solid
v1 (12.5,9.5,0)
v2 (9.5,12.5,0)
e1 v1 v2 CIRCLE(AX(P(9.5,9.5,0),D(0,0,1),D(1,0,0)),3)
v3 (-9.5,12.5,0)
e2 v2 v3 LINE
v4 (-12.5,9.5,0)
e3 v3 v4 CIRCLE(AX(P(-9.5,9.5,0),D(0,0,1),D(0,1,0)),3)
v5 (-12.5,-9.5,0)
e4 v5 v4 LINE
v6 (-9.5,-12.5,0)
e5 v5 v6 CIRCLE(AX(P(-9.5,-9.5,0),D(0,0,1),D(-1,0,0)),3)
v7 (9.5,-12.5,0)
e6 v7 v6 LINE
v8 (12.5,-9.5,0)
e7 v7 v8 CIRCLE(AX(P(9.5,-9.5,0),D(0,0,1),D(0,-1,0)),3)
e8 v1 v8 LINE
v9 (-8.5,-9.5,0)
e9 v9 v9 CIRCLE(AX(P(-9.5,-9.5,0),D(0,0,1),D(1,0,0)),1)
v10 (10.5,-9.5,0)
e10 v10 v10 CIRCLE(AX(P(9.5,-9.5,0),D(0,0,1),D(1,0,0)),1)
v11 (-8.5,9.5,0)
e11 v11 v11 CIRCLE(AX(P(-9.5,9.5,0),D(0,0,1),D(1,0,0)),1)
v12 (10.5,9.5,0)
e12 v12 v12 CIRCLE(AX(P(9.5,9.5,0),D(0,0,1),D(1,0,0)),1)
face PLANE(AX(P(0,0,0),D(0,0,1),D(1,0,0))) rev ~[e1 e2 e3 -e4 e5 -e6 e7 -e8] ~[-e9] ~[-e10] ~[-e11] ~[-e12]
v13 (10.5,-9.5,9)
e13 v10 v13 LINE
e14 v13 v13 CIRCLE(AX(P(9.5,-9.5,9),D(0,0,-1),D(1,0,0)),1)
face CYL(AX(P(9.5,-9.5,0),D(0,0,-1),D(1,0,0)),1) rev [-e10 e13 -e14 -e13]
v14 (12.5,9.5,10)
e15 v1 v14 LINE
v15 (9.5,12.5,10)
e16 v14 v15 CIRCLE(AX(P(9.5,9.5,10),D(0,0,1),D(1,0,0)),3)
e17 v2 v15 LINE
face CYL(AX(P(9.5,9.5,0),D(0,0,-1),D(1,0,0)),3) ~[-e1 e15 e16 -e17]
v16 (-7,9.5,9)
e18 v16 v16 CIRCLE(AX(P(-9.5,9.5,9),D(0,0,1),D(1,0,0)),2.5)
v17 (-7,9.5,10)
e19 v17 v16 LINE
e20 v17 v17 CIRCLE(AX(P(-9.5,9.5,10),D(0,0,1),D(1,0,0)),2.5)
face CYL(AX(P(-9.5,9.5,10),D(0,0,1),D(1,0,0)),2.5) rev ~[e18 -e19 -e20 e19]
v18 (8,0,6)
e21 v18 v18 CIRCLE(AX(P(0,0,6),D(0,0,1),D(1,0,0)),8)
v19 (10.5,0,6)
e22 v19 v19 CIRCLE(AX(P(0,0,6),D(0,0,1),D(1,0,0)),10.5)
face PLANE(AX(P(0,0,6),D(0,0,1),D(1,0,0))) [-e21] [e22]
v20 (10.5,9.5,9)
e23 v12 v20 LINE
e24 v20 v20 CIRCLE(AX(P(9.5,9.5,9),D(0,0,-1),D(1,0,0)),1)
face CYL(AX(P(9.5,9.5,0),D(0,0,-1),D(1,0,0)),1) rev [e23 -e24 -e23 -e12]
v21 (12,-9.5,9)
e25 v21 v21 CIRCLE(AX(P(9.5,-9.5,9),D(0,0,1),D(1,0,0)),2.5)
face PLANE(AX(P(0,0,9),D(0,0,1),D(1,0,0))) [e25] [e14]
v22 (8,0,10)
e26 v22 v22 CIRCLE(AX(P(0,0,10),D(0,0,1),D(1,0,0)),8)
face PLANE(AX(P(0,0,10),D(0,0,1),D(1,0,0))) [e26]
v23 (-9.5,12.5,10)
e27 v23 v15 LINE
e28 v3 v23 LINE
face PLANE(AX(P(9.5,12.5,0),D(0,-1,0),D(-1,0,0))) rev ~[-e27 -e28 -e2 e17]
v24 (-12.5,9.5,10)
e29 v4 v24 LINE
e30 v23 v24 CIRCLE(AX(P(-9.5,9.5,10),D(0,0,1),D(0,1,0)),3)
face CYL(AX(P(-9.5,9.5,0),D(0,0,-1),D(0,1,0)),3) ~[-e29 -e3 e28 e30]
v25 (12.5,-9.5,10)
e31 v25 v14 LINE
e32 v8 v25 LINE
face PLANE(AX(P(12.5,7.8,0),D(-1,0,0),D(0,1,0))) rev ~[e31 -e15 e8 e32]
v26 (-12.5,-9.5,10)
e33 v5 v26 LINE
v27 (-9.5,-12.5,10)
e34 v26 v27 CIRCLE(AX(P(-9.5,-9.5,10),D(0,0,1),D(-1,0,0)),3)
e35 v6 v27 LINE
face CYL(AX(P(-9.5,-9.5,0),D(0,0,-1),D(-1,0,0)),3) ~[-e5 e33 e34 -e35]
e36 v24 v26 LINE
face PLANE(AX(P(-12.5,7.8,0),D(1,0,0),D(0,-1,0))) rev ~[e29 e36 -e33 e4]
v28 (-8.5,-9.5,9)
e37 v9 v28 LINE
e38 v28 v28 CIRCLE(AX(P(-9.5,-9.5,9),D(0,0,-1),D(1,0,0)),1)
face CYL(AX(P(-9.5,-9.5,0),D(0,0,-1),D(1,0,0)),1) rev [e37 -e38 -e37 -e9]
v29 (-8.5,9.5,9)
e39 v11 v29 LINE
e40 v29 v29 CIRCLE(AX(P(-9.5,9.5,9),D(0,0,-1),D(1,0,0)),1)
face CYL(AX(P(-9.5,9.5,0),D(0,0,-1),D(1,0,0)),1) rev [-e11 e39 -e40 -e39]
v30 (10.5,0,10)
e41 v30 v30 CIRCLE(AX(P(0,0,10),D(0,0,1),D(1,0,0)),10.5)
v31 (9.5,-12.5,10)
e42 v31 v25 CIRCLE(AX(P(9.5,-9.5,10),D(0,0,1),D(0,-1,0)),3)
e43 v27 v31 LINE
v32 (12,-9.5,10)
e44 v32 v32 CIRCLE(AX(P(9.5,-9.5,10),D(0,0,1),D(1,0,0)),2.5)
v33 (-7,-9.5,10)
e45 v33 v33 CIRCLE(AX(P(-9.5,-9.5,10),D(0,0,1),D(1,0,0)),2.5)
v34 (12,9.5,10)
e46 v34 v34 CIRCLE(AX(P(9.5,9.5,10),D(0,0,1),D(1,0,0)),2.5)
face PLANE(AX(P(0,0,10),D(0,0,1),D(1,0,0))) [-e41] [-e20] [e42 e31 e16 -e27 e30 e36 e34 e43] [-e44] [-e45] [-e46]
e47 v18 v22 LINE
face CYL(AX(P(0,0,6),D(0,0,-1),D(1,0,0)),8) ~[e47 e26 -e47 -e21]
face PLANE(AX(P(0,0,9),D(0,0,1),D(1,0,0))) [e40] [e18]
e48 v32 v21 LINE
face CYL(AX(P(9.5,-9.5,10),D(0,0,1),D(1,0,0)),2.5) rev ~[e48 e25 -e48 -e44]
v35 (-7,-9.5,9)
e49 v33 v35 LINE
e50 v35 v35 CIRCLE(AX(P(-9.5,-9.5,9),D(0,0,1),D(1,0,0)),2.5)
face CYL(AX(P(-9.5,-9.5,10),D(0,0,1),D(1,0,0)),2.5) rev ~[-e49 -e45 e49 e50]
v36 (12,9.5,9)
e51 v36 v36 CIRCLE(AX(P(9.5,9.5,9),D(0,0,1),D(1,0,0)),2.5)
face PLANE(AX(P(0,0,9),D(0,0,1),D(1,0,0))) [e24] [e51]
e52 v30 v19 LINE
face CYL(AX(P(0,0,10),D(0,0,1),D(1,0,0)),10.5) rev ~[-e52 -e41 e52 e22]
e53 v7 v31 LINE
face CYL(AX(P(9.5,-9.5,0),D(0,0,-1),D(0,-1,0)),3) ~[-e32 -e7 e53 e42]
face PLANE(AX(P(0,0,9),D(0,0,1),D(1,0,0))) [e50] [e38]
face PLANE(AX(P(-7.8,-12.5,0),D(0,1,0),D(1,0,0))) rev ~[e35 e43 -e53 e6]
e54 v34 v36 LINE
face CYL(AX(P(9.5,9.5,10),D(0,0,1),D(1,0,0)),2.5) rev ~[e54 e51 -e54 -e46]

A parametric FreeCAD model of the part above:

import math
import FreeCAD as App
import Part
import Sketcher
from FreeCAD import Vector

doc = App.newDocument("Part")
body = doc.addObject("PartDesign::Body", "Body")

sketch1 = doc.addObject("Sketcher::SketchObject", "Sketch")
body.addObject(sketch1)
sketch1.AttachmentSupport = (doc.XY_Plane, [""])
sketch1.MapMode = "FlatFace"
sketch1.addGeometry([
    Part.LineSegment(Vector(9.5, 12.5, 0), Vector(-9.5, 12.5, 0)),
    Part.ArcOfCircle(Part.Circle(Vector(-9.5, 9.5, 0), Vector(0, 0, 1), 3), math.radians(90), math.radians(180)),
    Part.LineSegment(Vector(-12.5, 9.5, 0), Vector(-12.5, -9.5, 0)),
    Part.ArcOfCircle(Part.Circle(Vector(-9.5, -9.5, 0), Vector(0, 0, 1), 3), math.radians(180), math.radians(270)),
    Part.LineSegment(Vector(-9.5, -12.5, 0), Vector(9.5, -12.5, 0)),
    Part.ArcOfCircle(Part.Circle(Vector(9.5, -9.5, 0), Vector(0, 0, 1), 3), math.radians(-90), math.radians(0)),
    Part.LineSegment(Vector(12.5, -9.5, 0), Vector(12.5, 9.5, 0)),
    Part.ArcOfCircle(Part.Circle(Vector(9.5, 9.5, 0), Vector(0, 0, 1), 3), math.radians(0), math.radians(90)),
    Part.Circle(Vector(9.5, 9.5, 0), Vector(0, 0, 1), 1),
    Part.Circle(Vector(9.5, -9.5, 0), Vector(0, 0, 1), 1),
    Part.Circle(Vector(-9.5, -9.5, 0), Vector(0, 0, 1), 1),
    Part.Circle(Vector(-9.5, 9.5, 0), Vector(0, 0, 1), 1),
], False)
sketch1.addConstraint([
    Sketcher.Constraint("Tangent", 0, 2, 1, 1),
    Sketcher.Constraint("Tangent", 1, 2, 2, 1),
    Sketcher.Constraint("Tangent", 2, 2, 3, 1),
    Sketcher.Constraint("Tangent", 3, 2, 4, 1),
    Sketcher.Constraint("Tangent", 4, 2, 5, 1),
    Sketcher.Constraint("Tangent", 5, 2, 6, 1),
    Sketcher.Constraint("Tangent", 6, 2, 7, 1),
    Sketcher.Constraint("Tangent", 7, 2, 0, 1),
    Sketcher.Constraint("Horizontal", 0),
    Sketcher.Constraint("Vertical", 2),
    Sketcher.Constraint("Horizontal", 4),
    Sketcher.Constraint("Vertical", 6),
    Sketcher.Constraint("Coincident", 8, 3, 7, 3),
    Sketcher.Constraint("Coincident", 9, 3, 5, 3),
    Sketcher.Constraint("Coincident", 10, 3, 3, 3),
    Sketcher.Constraint("Coincident", 11, 3, 1, 3),
    Sketcher.Constraint("Equal", 1, 3),
    Sketcher.Constraint("Equal", 3, 5),
    Sketcher.Constraint("Equal", 5, 7),
    Sketcher.Constraint("Equal", 8, 9),
    Sketcher.Constraint("Equal", 9, 10),
    Sketcher.Constraint("Equal", 10, 11),
    Sketcher.Constraint("Symmetric", 1, 3, 5, 3, -1, 1),
    Sketcher.Constraint("Equal", 4, 2),
    Sketcher.Constraint("Radius", 1, 3.0),
    Sketcher.Constraint("Diameter", 8, 2.0),
    Sketcher.Constraint("DistanceX", 0, 2, 0, 1, 19.0),
])
pad1 = doc.addObject("PartDesign::Pad", "Pad")
body.addObject(pad1)
pad1.Profile = sketch1
pad1.Length = 10

sketch2 = doc.addObject("Sketcher::SketchObject", "Sketch001")
body.addObject(sketch2)
sketch2.AttachmentSupport = (doc.XY_Plane, [""])
sketch2.MapMode = "FlatFace"
sketch2.AttachmentOffset = App.Placement(Vector(0, 0, 10), App.Rotation())
sketch2.addGeometry(Part.Circle(Vector(0, 0, 0), Vector(0, 0, 1), 10), False)
sketch2.addConstraint([
    Sketcher.Constraint("Coincident", 0, 3, -1, 1),
    Sketcher.Constraint("Diameter", 0, 21.0),
])
pocket1 = doc.addObject("PartDesign::Pocket", "Pocket")
body.addObject(pocket1)
pocket1.Profile = sketch2
pocket1.Length = 4

sketch3 = doc.addObject("Sketcher::SketchObject", "Sketch002")
body.addObject(sketch3)
sketch3.AttachmentSupport = (doc.XY_Plane, [""])
sketch3.MapMode = "FlatFace"
sketch3.AttachmentOffset = App.Placement(Vector(0, 0, 6), App.Rotation())
sketch3.addGeometry(Part.Circle(Vector(0, 0, 0), Vector(0, 0, 1), 8), False)
sketch3.addConstraint([
    Sketcher.Constraint("Coincident", 0, 3, -1, 1),
    Sketcher.Constraint("Diameter", 0, 16.0),
])
pad2 = doc.addObject("PartDesign::Pad", "Pad001")
body.addObject(pad2)
pad2.Profile = sketch3
pad2.Length = 4

sketch4 = doc.addObject("Sketcher::SketchObject", "Sketch003")
body.addObject(sketch4)
sketch4.AttachmentSupport = (doc.XY_Plane, [""])
sketch4.MapMode = "FlatFace"
sketch4.AttachmentOffset = App.Placement(Vector(0, 0, 10), App.Rotation())
sketch4.addGeometry([
    Part.Circle(Vector(9.5, -9.5, 0), Vector(0, 0, 1), 2.5),
    Part.Circle(Vector(-9.5, -9.5, 0), Vector(0, 0, 1), 2.5),
    Part.Circle(Vector(-9.5, 9.5, 0), Vector(0, 0, 1), 2.5),
    Part.Circle(Vector(9.5, 9.5, 0), Vector(0, 0, 1), 2.5),
], False)
sketch4.addConstraint([
    Sketcher.Constraint("Equal", 0, 1),
    Sketcher.Constraint("Equal", 1, 2),
    Sketcher.Constraint("Equal", 2, 3),
    Sketcher.Constraint("Symmetric", 0, 3, 2, 3, -1, 1),
    Sketcher.Constraint("Symmetric", 1, 3, 3, 3, -1, 1),
    Sketcher.Constraint("Symmetric", 0, 3, 1, 3, -2),
    Sketcher.Constraint("Diameter", 0, 5.0),
    Sketcher.Constraint("DistanceX", 1, 3, 0, 3, 19.0),
    Sketcher.Constraint("DistanceY", 1, 3, 2, 3, 19.0),
])
pocket2 = doc.addObject("PartDesign::Pocket", "Pocket001")
body.addObject(pocket2)
pocket2.Profile = sketch4
pocket2.Length = 1

doc.recompute()
